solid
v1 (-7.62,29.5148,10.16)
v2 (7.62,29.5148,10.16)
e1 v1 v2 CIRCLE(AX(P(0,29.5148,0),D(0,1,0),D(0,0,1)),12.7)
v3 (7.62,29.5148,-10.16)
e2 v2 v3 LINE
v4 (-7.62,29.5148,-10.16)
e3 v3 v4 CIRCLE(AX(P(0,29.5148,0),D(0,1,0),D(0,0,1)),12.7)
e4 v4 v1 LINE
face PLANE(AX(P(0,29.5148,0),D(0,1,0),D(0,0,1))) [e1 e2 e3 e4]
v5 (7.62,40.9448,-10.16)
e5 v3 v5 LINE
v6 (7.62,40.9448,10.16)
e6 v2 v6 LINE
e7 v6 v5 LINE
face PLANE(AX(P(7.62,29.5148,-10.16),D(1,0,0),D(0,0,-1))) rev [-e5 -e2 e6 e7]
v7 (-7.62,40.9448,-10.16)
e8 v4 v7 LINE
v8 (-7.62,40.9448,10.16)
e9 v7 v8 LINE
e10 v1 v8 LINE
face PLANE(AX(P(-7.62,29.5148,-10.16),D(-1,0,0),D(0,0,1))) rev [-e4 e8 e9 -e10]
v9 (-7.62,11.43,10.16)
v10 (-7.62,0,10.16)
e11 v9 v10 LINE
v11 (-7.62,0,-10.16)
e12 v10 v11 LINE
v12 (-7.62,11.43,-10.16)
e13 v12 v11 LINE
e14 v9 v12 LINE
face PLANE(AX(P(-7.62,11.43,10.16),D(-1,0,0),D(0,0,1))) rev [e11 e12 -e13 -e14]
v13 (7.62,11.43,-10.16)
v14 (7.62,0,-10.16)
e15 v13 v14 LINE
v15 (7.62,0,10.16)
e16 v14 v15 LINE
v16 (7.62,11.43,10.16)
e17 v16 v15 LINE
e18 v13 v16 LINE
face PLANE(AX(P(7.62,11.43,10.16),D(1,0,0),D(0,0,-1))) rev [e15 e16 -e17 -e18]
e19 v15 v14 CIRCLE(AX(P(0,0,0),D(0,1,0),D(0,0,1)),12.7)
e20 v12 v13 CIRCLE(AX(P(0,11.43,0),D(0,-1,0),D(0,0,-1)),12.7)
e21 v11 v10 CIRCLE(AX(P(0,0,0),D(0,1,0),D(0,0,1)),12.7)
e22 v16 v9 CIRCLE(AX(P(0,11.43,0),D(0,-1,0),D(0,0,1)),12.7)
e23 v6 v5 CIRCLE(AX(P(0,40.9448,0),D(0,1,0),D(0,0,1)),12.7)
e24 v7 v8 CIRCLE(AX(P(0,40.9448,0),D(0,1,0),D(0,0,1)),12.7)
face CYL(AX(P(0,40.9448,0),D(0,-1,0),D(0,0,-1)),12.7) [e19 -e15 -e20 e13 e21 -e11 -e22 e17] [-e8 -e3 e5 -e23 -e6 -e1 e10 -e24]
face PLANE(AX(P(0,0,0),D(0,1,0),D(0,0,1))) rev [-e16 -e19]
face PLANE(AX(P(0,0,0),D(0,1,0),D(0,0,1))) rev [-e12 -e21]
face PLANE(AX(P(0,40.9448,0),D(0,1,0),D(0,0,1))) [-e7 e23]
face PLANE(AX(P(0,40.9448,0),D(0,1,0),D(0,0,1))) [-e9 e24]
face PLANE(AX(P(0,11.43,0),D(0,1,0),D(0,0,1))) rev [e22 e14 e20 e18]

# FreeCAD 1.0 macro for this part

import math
import FreeCAD as App
import Part
import Sketcher
from FreeCAD import Vector
Q = App.Units.Quantity

doc = App.newDocument("Part")
body = doc.addObject("PartDesign::Body", "Body")

# Sketch on XZ plane
sketch1 = body.newObject("Sketcher::SketchObject", "Sketch")
sketch1.AttachmentSupport = (doc.getObject("XZ_Plane"), [""])
sketch1.MapMode = "FlatFace"
sketch1.addGeometry(Part.Circle(Vector(0, 0, 0), Vector(0, 0, 1), 12.7), False)
sketch1.addConstraint([
    Sketcher.Constraint("Coincident", 0, 3, -1, 1),
    Sketcher.Constraint("Diameter", 0, Q("1 in")),
])
pad1 = body.newObject("PartDesign::Pad", "Pad")
pad1.Profile = sketch1
pad1.Length = Q("1.612 in")
pad1.Reversed = True

# Sketch on XZ plane
sketch2 = body.newObject("Sketcher::SketchObject", "Sketch001")
sketch2.AttachmentSupport = (doc.getObject("XZ_Plane"), [""])
sketch2.MapMode = "FlatFace"
sketch2.AttachmentOffset = App.Placement(Vector(0, 0, -1.162 * 25.4), App.Rotation())
sketch2.addGeometry([
    Part.LineSegment(Vector(7.62, 10.16, 0), Vector(7.62, -10.16, 0)),
    Part.ArcOfCircle(Part.Circle(Vector(0, 0, 0), Vector(0, 0, 1), 12.7), math.radians(-126.869898), math.radians(-53.130102)),
    Part.LineSegment(Vector(-7.62, -10.16, 0), Vector(-7.62, 10.16, 0)),
    Part.ArcOfCircle(Part.Circle(Vector(0, 0, 0), Vector(0, 0, 1), 12.7), math.radians(53.130102), math.radians(126.869898)),
], False)
sketch2.addConstraint([
    Sketcher.Constraint("Coincident", 0, 2, 1, 2),
    Sketcher.Constraint("Coincident", 1, 1, 2, 1),
    Sketcher.Constraint("Coincident", 2, 2, 3, 2),
    Sketcher.Constraint("Coincident", 3, 1, 0, 1),
    Sketcher.Constraint("Vertical", 0),
    Sketcher.Constraint("Vertical", 2),
    Sketcher.Constraint("Coincident", 1, 3, -1, 1),
    Sketcher.Constraint("Coincident", 3, 3, -1, 1),
    Sketcher.Constraint("Equal", 1, 3),
    Sketcher.Constraint("Horizontal", 0, 2, 1, 1),
    Sketcher.Constraint("Radius", 1, Q("0.5 in")),
    Sketcher.Constraint("DistanceY", 0, 2, 0, 1, Q("0.8 in")),
])
pocket1 = body.newObject("PartDesign::Pocket", "Pocket")
pocket1.Profile = sketch2
pocket1.Length = Q("0.45 in")

# Sketch on XZ plane
sketch3 = body.newObject("Sketcher::SketchObject", "Sketch002")
sketch3.AttachmentSupport = (doc.getObject("XZ_Plane"), [""])
sketch3.MapMode = "FlatFace"
sketch3.addGeometry([
    Part.LineSegment(Vector(-7.62, 10.16, 0), Vector(-7.62, -10.16, 0)),
    Part.ArcOfCircle(Part.Circle(Vector(0, 0, 0), Vector(0, 0, 1), 12.7), math.radians(-126.869898), math.radians(-53.130102)),
    Part.LineSegment(Vector(7.62, -10.16, 0), Vector(7.62, 10.16, 0)),
    Part.ArcOfCircle(Part.Circle(Vector(0, 0, 0), Vector(0, 0, 1), 12.7), math.radians(53.130102), math.radians(126.869898)),
], False)
sketch3.addConstraint([
    Sketcher.Constraint("Coincident", 0, 2, 1, 1),
    Sketcher.Constraint("Coincident", 1, 2, 2, 1),
    Sketcher.Constraint("Coincident", 2, 2, 3, 1),
    Sketcher.Constraint("Coincident", 3, 2, 0, 1),
    Sketcher.Constraint("Vertical", 0),
    Sketcher.Constraint("Vertical", 2),
    Sketcher.Constraint("Coincident", 1, 3, -1, 1),
    Sketcher.Constraint("Coincident", 3, 3, -1, 1),
    Sketcher.Constraint("Equal", 1, 3),
    Sketcher.Constraint("Horizontal", 0, 2, 1, 2),
    Sketcher.Constraint("Radius", 1, Q("0.5 in")),
    Sketcher.Constraint("DistanceY", 0, 2, 0, 1, Q("0.8 in")),
])
pocket2 = body.newObject("PartDesign::Pocket", "Pocket001")
pocket2.Profile = sketch3
pocket2.Length = Q("0.45 in")

doc.recompute()
